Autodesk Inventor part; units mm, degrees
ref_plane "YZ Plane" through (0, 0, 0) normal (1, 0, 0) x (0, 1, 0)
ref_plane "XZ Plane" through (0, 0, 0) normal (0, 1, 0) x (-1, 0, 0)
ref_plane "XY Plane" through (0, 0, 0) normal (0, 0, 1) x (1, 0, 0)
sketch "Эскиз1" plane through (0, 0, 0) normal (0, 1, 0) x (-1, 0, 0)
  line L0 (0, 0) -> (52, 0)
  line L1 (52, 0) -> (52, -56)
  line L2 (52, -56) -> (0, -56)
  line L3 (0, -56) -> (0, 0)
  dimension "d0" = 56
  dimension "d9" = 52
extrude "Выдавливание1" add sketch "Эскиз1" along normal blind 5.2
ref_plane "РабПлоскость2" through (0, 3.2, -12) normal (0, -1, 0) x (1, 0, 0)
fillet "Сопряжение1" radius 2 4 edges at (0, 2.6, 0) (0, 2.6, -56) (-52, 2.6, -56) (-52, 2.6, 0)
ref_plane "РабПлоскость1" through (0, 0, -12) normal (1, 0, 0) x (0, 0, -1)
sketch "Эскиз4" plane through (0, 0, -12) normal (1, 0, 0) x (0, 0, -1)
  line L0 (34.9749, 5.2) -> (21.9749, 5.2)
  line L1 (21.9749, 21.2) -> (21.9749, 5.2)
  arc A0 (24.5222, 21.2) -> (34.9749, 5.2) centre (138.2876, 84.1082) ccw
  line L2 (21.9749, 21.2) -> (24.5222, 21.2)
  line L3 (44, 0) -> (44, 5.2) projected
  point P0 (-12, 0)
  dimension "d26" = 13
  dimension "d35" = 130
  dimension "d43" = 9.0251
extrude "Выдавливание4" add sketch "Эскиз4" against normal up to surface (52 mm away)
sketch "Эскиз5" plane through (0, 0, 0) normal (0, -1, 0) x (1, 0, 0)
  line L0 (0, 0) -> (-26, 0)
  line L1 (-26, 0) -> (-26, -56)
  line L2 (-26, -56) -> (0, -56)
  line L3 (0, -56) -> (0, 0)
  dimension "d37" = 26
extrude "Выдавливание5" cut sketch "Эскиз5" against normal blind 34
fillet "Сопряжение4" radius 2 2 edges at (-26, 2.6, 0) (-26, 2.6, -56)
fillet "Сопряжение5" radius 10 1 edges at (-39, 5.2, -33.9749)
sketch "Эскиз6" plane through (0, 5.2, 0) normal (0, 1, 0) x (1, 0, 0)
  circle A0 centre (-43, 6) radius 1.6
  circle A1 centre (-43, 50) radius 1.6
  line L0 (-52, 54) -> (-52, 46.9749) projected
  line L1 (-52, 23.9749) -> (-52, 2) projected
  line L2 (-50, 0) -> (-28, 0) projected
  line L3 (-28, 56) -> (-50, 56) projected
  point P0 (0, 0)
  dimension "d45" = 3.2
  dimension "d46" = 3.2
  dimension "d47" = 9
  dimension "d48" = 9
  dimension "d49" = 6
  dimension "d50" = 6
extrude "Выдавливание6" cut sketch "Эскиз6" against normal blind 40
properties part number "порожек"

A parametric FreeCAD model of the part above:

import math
import FreeCAD as App
import Part
import Sketcher

V = App.Vector
Q = App.Units.Quantity


def edges_at(feature, points):
    """Names of the edges that pass closest to the given points."""
    edges = feature.Shape.Edges
    near = lambda p: min(range(len(edges)), key=lambda i: edges[i].distToShape(Part.Vertex(*p))[0])
    return sorted({f"Edge{near(p) + 1}" for p in points})


def add_polygon(sketch, points):
    """Adds a closed chain of lines whose ends are joined by coincident constraints."""
    first, n = sketch.GeometryCount, len(points)
    for a, b in zip(points, points[1:] + points[:1]):
        sketch.addGeometry(Part.LineSegment(App.Vector(*a, 0), App.Vector(*b, 0)), False)
    for i in range(n):
        sketch.addConstraint(Sketcher.Constraint("Coincident", first + i, 2, first + (i + 1) % n, 1))

doc = App.newDocument("Part")
body = doc.addObject("PartDesign::Body", "Body")

# Sketch on XZ plane
sketch1 = body.newObject("Sketcher::SketchObject", "Sketch")
sketch1.AttachmentSupport = (doc.getObject("XZ_Plane"), [""])
sketch1.MapMode = "FlatFace"
add_polygon(sketch1, [(-52, 0), (0, 0), (0, -56), (-52, -56)])  # lines 0-3
sketch1.addConstraint([
    Sketcher.Constraint("Horizontal", 0),
    Sketcher.Constraint("Vertical", 1),
    Sketcher.Constraint("Horizontal", 2),
    Sketcher.Constraint("Vertical", 3),
    Sketcher.Constraint("Coincident", 0, 2, -1, 1),
    Sketcher.Constraint("DistanceX", 0, 1, 0, 2, Q("52 mm")),
    Sketcher.Constraint("DistanceY", 1, 2, 1, 1, Q("56 mm")),
])
pad1 = body.newObject("PartDesign::Pad", "Pad")
pad1.Profile = sketch1
pad1.Length = 5.2
pad1.Reversed = True
doc.recompute()

fillet = body.newObject("PartDesign::Fillet", "Fillet")
fillet.Base = (pad1, edges_at(pad1, [
    (0, 2.6, 0),
    (0, 2.6, -56),
    (-52, 2.6, -56),
    (-52, 2.6, 0),
]))
fillet.Radius = 2

# Sketch on YZ plane
sketch2 = body.newObject("Sketcher::SketchObject", "Sketch001")
sketch2.AttachmentSupport = (doc.getObject("YZ_Plane"), [""])
sketch2.MapMode = "FlatFace"
sketch2.addGeometry([
    Part.LineSegment(V(5.2, -34, 0), V(5.2, -47, 0)),
    Part.ArcOfCircle(Part.Circle(V(84.1, -150.3, 0), V(0, 0, 1), 130), math.radians(118.94), math.radians(127.37)),
    Part.LineSegment(V(21.2, -36.5, 0), V(21.2, -34, 0)),
    Part.LineSegment(V(21.2, -34, 0), V(5.2, -34, 0)),
], False)
sketch2.addConstraint([
    Sketcher.Constraint("Coincident", 0, 2, 1, 2),
    Sketcher.Constraint("Coincident", 1, 1, 2, 1),
    Sketcher.Constraint("Coincident", 2, 2, 3, 1),
    Sketcher.Constraint("Coincident", 3, 2, 0, 1),
    Sketcher.Constraint("Vertical", 0),
    Sketcher.Constraint("Vertical", 2),
    Sketcher.Constraint("Horizontal", 3),
    Sketcher.Constraint("DistanceY", 0, 2, 0, 1, Q("13 mm")),
    Sketcher.Constraint("DistanceX", 3, 2, 3, 1, Q("16 mm")),
    Sketcher.Constraint("DistanceX", -1, 1, 0, 2, Q("5.2 mm")),
    Sketcher.Constraint("Radius", 1, Q("130.0072 mm")),
    Sketcher.Constraint("DistanceY", 2, 1, 2, 2, Q("2.5473 mm")),
    Sketcher.Constraint("DistanceY", 0, 2, -1, 1, Q("46.975 mm")),
])
pad2 = body.newObject("PartDesign::Pad", "Pad001")
pad2.Profile = sketch2
pad2.Length = 52
pad2.Reversed = True

# Sketch on XZ plane
sketch3 = body.newObject("Sketcher::SketchObject", "Sketch002")
sketch3.AttachmentSupport = (doc.getObject("XZ_Plane"), [""])
sketch3.MapMode = "FlatFace"
add_polygon(sketch3, [(0, -56), (0, 0), (-26, 0), (-26, -56)])  # lines 0-3
sketch3.addConstraint([
    Sketcher.Constraint("Vertical", 0),
    Sketcher.Constraint("Horizontal", 1),
    Sketcher.Constraint("Vertical", 2),
    Sketcher.Constraint("Horizontal", 3),
    Sketcher.Constraint("Coincident", 0, 2, -1, 1),
    Sketcher.Constraint("DistanceX", 1, 2, 1, 1, Q("26 mm")),
    Sketcher.Constraint("DistanceY", 0, 1, 0, 2, Q("56 mm")),
])
pocket1 = body.newObject("PartDesign::Pocket", "Pocket")
pocket1.Profile = sketch3
pocket1.Length = 34
doc.recompute()

fillet2 = body.newObject("PartDesign::Fillet", "Fillet001")
fillet2.Base = (pocket1, edges_at(pocket1, [(-26, 2.6, 0), (-26, 2.6, -56)]))
fillet2.Radius = 2
doc.recompute()

fillet3 = body.newObject("PartDesign::Fillet", "Fillet002")
fillet3.Base = (fillet2, edges_at(fillet2, [(-39, 5.2, -33.975)]))
fillet3.Radius = 10

# Sketch on XZ plane
sketch4 = body.newObject("Sketcher::SketchObject", "Sketch003")
sketch4.AttachmentSupport = (doc.getObject("XZ_Plane"), [""])
sketch4.MapMode = "FlatFace"
sketch4.AttachmentOffset = App.Placement(V(0, 0, -5.2), App.Rotation())
sketch4.addGeometry([
    Part.Circle(V(-43, -6, 0), V(0, 0, 1), 1.6),
    Part.Circle(V(-43, -50, 0), V(0, 0, 1), 1.6),
], False)
sketch4.addConstraint([
    Sketcher.Constraint("Equal", 0, 1),
    Sketcher.Constraint("Vertical", 0, 3, 1, 3),
    Sketcher.Constraint("Diameter", 0, Q("3.2 mm")),
    Sketcher.Constraint("DistanceY", 0, 3, -1, 1, Q("6 mm")),
    Sketcher.Constraint("DistanceX", 0, 3, -1, 1, Q("43 mm")),
    Sketcher.Constraint("DistanceY", 1, 3, -1, 1, Q("50 mm")),
])
pocket2 = body.newObject("PartDesign::Pocket", "Pocket001")
pocket2.Profile = sketch4
pocket2.Length = 40
pocket2.Reversed = True

doc.recompute()
